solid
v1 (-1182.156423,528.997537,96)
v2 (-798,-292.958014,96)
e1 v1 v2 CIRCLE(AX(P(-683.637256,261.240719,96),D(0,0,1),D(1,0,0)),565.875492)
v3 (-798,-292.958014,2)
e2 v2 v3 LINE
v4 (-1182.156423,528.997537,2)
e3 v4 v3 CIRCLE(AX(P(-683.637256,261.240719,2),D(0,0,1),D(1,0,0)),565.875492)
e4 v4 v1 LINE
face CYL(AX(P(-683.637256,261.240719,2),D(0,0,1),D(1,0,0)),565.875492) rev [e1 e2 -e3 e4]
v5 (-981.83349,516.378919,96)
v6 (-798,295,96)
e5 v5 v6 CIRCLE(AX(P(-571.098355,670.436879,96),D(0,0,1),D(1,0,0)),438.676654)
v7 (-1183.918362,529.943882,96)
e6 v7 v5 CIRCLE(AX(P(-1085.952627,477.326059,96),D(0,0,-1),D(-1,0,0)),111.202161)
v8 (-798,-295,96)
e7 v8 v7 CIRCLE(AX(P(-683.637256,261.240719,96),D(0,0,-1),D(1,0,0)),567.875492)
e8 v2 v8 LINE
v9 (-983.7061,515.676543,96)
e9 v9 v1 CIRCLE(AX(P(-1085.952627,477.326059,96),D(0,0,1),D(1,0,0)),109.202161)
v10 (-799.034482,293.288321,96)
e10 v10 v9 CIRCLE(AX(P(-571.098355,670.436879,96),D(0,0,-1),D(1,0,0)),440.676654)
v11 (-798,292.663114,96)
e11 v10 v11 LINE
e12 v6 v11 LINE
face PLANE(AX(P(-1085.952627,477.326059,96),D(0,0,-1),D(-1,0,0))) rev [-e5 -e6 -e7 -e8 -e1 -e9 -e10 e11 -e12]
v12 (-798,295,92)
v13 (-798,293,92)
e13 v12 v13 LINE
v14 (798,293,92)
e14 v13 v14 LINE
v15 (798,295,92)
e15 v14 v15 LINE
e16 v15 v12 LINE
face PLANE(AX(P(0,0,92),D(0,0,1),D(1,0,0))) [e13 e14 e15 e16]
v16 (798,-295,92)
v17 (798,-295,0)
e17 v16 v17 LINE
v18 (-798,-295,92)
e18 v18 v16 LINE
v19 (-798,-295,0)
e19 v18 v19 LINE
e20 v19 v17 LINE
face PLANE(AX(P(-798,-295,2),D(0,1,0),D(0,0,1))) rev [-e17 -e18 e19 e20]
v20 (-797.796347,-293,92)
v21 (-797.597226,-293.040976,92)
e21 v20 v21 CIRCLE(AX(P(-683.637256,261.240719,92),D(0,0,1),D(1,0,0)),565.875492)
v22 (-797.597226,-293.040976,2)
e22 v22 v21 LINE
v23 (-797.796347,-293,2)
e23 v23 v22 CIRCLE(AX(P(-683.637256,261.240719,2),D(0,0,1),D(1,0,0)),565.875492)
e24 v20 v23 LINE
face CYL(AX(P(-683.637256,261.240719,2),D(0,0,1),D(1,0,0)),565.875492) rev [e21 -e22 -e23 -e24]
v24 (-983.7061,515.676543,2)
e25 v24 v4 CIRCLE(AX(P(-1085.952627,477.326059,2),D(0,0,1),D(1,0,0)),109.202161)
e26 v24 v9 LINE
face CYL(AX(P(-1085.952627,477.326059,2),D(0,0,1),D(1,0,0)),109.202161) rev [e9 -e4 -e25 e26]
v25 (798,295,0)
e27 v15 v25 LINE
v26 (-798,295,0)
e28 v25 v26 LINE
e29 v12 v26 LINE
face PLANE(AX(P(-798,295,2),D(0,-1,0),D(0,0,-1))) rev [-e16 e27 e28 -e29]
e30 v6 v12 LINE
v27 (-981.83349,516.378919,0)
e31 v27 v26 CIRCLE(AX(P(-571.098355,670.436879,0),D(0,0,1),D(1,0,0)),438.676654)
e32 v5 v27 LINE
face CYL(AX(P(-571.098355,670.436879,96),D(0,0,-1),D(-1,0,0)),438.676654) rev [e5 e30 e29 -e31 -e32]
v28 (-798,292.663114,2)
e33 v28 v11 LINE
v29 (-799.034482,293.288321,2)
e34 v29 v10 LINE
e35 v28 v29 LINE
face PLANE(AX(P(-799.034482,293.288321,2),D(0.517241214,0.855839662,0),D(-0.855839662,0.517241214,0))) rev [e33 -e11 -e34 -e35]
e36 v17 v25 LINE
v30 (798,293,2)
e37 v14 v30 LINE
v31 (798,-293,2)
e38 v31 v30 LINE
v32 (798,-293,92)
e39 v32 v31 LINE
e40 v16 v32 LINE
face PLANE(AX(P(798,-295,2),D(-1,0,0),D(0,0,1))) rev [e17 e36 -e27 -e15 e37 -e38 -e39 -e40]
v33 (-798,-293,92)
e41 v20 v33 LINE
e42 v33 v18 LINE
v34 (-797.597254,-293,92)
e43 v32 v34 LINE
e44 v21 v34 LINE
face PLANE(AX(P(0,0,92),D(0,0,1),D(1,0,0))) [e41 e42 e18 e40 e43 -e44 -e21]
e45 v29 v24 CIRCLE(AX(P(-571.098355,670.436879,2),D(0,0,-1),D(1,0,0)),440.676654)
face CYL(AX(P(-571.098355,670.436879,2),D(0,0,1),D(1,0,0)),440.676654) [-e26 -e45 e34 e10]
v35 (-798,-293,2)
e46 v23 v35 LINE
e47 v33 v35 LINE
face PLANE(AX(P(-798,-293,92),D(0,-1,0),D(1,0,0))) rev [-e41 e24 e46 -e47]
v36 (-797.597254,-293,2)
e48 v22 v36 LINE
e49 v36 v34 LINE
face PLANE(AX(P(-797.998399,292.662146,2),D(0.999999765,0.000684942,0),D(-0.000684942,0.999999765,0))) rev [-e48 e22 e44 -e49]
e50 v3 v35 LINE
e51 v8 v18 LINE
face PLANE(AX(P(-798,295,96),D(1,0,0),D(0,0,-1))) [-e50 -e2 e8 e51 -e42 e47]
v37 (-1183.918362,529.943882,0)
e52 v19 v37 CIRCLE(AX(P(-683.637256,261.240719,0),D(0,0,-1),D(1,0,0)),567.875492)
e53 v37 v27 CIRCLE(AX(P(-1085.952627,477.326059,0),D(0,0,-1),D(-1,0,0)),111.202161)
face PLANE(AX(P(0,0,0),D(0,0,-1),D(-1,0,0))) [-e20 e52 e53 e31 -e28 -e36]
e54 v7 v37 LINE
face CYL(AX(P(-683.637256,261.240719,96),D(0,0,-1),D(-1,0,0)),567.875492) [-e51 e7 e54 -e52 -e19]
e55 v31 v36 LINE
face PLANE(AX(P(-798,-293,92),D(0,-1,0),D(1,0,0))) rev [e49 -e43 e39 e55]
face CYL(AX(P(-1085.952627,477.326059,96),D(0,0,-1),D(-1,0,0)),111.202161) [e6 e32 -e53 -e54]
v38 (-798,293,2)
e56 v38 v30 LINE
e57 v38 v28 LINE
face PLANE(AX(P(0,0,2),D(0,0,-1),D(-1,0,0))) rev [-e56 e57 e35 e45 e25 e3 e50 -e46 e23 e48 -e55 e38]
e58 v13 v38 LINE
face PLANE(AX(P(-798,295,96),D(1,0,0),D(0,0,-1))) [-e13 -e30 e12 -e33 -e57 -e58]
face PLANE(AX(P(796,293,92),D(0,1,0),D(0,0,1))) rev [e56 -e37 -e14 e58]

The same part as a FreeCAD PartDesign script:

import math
import FreeCAD as App
import Part
import Sketcher


def add_polygon(sketch, points):
    """Adds a closed chain of lines whose ends are joined by coincident constraints."""
    first, n = sketch.GeometryCount, len(points)
    for a, b in zip(points, points[1:] + points[:1]):
        sketch.addGeometry(Part.LineSegment(App.Vector(*a, 0), App.Vector(*b, 0)), False)
    for i in range(n):
        sketch.addConstraint(Sketcher.Constraint("Coincident", first + i, 2, first + (i + 1) % n, 1))

doc = App.newDocument("Part")
body = doc.addObject("PartDesign::Body", "Body")

# Sketch on XY plane
sketch1 = doc.addObject("Sketcher::SketchObject", "Sketch")
body.addObject(sketch1)
sketch1.AttachmentSupport = (doc.XY_Plane, [""])
sketch1.MapMode = "FlatFace"
add_polygon(sketch1, [(-798, 295), (-798, -295), (798, -295), (798, 295)])  # lines 0-3
sketch1.addConstraint([
    Sketcher.Constraint("Vertical", 0),
    Sketcher.Constraint("Horizontal", 1),
    Sketcher.Constraint("Vertical", 2),
    Sketcher.Constraint("Horizontal", 3),
    Sketcher.Constraint("Symmetric", 0, 2, 2, 2, -1, 1),
    Sketcher.Constraint("DistanceX", 1, 1, 1, 2, 1596.0),
    Sketcher.Constraint("DistanceY", 0, 2, 0, 1, 590.0),
])
pad1 = doc.addObject("PartDesign::Pad", "Pad")
body.addObject(pad1)
pad1.Profile = sketch1
pad1.Length = 2

# Sketch on XY plane
sketch2 = doc.addObject("Sketcher::SketchObject", "Sketch001")
body.addObject(sketch2)
sketch2.AttachmentSupport = (doc.XY_Plane, [""])
sketch2.MapMode = "FlatFace"
sketch2.AttachmentOffset = App.Placement(App.Vector(0, 0, 2), App.Rotation())
add_polygon(sketch2, [(798, -293), (-798, -293), (-798, -295), (798, -295)])  # lines 0-3
add_polygon(sketch2, [(798, 293), (798, 295), (-798, 295), (-798, 293)])  # lines 4-7
sketch2.addConstraint([
    Sketcher.Constraint("Horizontal", 0),
    Sketcher.Constraint("Vertical", 1),
    Sketcher.Constraint("Horizontal", 2),
    Sketcher.Constraint("Vertical", 3),
    Sketcher.Constraint("Vertical", 4),
    Sketcher.Constraint("Horizontal", 5),
    Sketcher.Constraint("Vertical", 6),
    Sketcher.Constraint("Horizontal", 7),
    Sketcher.Constraint("Symmetric", 1, 2, 4, 2, -1, 1),
    Sketcher.Constraint("Symmetric", 3, 2, 6, 2, -1, 1),
    Sketcher.Constraint("Vertical", 3, 2, 4, 2),
    Sketcher.Constraint("DistanceX", 0, 2, 0, 1, 1596.0),
    Sketcher.Constraint("DistanceY", 1, 2, 1, 1, 2.0),
    Sketcher.Constraint("DistanceY", 0, 2, -1, 1, 293.0),
])
pad2 = doc.addObject("PartDesign::Pad", "Pad001")
body.addObject(pad2)
pad2.Profile = sketch2
pad2.Length = 90

# Sketch on XY plane
sketch3 = doc.addObject("Sketcher::SketchObject", "Sketch002")
body.addObject(sketch3)
sketch3.AttachmentSupport = (doc.XY_Plane, [""])
sketch3.MapMode = "FlatFace"
sketch3.addGeometry([
    Part.LineSegment(App.Vector(-798, 295, 0), App.Vector(-798, -295, 0)),
    Part.ArcOfCircle(Part.Circle(App.Vector(-683.637256, 261.240719, 0), App.Vector(0, 0, 1), 567.875492), math.radians(151.759561), math.radians(258.381921)),
    Part.ArcOfCircle(Part.Circle(App.Vector(-1085.952627, 477.326059, 0), App.Vector(0, 0, 1), 111.202161), math.radians(20.559993), math.radians(151.759561)),
    Part.ArcOfCircle(Part.Circle(App.Vector(-571.098355, 670.436879, 0), App.Vector(0, 0, 1), 438.676654), math.radians(-159.440007), math.radians(-121.147379)),
], False)
sketch3.addConstraint([
    Sketcher.Constraint("Coincident", 0, 2, 1, 2),
    Sketcher.Constraint("Tangent", 1, 1, 2, 2),
    Sketcher.Constraint("Tangent", 2, 1, 3, 1),
    Sketcher.Constraint("Coincident", 3, 2, 0, 1),
    Sketcher.Constraint("Vertical", 0),
    Sketcher.Constraint("DistanceY", 0, 2, 0, 1, 590.0),
    Sketcher.Constraint("DistanceX", 0, 2, -1, 1, 798.0),
    Sketcher.Constraint("DistanceY", 0, 2, -1, 1, 295.0),
    Sketcher.Constraint("Radius", 2, 111.202161),
    Sketcher.Constraint("Radius", 1, 567.875492),
    Sketcher.Constraint("Radius", 3, 438.676654),
    Sketcher.Constraint("DistanceX", 1, 3, 3, 3, 112.538901),
    Sketcher.Constraint("DistanceY", -1, 1, 1, 3, 261.240719),
])
pad3 = doc.addObject("PartDesign::Pad", "Pad002")
body.addObject(pad3)
pad3.Profile = sketch3
pad3.Length = 96

# Sketch on XY plane
sketch4 = doc.addObject("Sketcher::SketchObject", "Sketch003")
body.addObject(sketch4)
sketch4.AttachmentSupport = (doc.XY_Plane, [""])
sketch4.MapMode = "FlatFace"
sketch4.AttachmentOffset = App.Placement(App.Vector(0, 0, 96), App.Rotation())
sketch4.addGeometry([
    Part.LineSegment(App.Vector(-797.597226, -293.040976, 0), App.Vector(-797.998399, 292.662146, 0)),  # 0
    Part.LineSegment(App.Vector(-797.998399, 292.662146, 0), App.Vector(-799.034482, 293.288321, 0)),  # 1
    Part.ArcOfCircle(Part.Circle(App.Vector(-571.098355, 670.436879, 0), App.Vector(0, 0, 1), 440.676654), math.radians(-159.440007), math.radians(-121.147379)),  # 2
    Part.ArcOfCircle(Part.Circle(App.Vector(-1085.952627, 477.326059, 0), App.Vector(0, 0, 1), 109.202161), math.radians(20.559993), math.radians(151.759561)),  # 3
    Part.ArcOfCircle(Part.Circle(App.Vector(-683.637256, 261.240719, 0), App.Vector(0, 0, 1), 565.875492), math.radians(151.759561), math.radians(258.381921)),  # 4
], False)
sketch4.addConstraint([
    Sketcher.Constraint("Coincident", 0, 2, 1, 1),
    Sketcher.Constraint("Tangent", 1, 2, 2, 2),
    Sketcher.Constraint("Tangent", 2, 1, 3, 1),
    Sketcher.Constraint("Tangent", 3, 2, 4, 1),
    Sketcher.Constraint("Coincident", 4, 2, 0, 1),
    Sketcher.Constraint("Radius", 3, 109.202161),
    Sketcher.Constraint("Radius", 2, 440.676654),
    Sketcher.Constraint("Radius", 4, 565.875492),
    Sketcher.Constraint("DistanceX", 0, 2, -1, 1, 797.998399),
    Sketcher.Constraint("DistanceX", 2, 1, -1, 1, 983.7061),
    Sketcher.Constraint("DistanceX", 4, 3, 2, 3, 112.538901),
    Sketcher.Constraint("DistanceY", 4, 3, 1, 2, 32.047602),
    Sketcher.Constraint("Distance", 0, 585.70326),
    Sketcher.Constraint("DistanceY", -1, 1, 2, 3, 670.436879),
    Sketcher.Constraint("DistanceY", -1, 1, 3, 3, 477.326059),
])
pocket1 = doc.addObject("PartDesign::Pocket", "Pocket")
body.addObject(pocket1)
pocket1.Profile = sketch4
pocket1.Length = 94

doc.recompute()
